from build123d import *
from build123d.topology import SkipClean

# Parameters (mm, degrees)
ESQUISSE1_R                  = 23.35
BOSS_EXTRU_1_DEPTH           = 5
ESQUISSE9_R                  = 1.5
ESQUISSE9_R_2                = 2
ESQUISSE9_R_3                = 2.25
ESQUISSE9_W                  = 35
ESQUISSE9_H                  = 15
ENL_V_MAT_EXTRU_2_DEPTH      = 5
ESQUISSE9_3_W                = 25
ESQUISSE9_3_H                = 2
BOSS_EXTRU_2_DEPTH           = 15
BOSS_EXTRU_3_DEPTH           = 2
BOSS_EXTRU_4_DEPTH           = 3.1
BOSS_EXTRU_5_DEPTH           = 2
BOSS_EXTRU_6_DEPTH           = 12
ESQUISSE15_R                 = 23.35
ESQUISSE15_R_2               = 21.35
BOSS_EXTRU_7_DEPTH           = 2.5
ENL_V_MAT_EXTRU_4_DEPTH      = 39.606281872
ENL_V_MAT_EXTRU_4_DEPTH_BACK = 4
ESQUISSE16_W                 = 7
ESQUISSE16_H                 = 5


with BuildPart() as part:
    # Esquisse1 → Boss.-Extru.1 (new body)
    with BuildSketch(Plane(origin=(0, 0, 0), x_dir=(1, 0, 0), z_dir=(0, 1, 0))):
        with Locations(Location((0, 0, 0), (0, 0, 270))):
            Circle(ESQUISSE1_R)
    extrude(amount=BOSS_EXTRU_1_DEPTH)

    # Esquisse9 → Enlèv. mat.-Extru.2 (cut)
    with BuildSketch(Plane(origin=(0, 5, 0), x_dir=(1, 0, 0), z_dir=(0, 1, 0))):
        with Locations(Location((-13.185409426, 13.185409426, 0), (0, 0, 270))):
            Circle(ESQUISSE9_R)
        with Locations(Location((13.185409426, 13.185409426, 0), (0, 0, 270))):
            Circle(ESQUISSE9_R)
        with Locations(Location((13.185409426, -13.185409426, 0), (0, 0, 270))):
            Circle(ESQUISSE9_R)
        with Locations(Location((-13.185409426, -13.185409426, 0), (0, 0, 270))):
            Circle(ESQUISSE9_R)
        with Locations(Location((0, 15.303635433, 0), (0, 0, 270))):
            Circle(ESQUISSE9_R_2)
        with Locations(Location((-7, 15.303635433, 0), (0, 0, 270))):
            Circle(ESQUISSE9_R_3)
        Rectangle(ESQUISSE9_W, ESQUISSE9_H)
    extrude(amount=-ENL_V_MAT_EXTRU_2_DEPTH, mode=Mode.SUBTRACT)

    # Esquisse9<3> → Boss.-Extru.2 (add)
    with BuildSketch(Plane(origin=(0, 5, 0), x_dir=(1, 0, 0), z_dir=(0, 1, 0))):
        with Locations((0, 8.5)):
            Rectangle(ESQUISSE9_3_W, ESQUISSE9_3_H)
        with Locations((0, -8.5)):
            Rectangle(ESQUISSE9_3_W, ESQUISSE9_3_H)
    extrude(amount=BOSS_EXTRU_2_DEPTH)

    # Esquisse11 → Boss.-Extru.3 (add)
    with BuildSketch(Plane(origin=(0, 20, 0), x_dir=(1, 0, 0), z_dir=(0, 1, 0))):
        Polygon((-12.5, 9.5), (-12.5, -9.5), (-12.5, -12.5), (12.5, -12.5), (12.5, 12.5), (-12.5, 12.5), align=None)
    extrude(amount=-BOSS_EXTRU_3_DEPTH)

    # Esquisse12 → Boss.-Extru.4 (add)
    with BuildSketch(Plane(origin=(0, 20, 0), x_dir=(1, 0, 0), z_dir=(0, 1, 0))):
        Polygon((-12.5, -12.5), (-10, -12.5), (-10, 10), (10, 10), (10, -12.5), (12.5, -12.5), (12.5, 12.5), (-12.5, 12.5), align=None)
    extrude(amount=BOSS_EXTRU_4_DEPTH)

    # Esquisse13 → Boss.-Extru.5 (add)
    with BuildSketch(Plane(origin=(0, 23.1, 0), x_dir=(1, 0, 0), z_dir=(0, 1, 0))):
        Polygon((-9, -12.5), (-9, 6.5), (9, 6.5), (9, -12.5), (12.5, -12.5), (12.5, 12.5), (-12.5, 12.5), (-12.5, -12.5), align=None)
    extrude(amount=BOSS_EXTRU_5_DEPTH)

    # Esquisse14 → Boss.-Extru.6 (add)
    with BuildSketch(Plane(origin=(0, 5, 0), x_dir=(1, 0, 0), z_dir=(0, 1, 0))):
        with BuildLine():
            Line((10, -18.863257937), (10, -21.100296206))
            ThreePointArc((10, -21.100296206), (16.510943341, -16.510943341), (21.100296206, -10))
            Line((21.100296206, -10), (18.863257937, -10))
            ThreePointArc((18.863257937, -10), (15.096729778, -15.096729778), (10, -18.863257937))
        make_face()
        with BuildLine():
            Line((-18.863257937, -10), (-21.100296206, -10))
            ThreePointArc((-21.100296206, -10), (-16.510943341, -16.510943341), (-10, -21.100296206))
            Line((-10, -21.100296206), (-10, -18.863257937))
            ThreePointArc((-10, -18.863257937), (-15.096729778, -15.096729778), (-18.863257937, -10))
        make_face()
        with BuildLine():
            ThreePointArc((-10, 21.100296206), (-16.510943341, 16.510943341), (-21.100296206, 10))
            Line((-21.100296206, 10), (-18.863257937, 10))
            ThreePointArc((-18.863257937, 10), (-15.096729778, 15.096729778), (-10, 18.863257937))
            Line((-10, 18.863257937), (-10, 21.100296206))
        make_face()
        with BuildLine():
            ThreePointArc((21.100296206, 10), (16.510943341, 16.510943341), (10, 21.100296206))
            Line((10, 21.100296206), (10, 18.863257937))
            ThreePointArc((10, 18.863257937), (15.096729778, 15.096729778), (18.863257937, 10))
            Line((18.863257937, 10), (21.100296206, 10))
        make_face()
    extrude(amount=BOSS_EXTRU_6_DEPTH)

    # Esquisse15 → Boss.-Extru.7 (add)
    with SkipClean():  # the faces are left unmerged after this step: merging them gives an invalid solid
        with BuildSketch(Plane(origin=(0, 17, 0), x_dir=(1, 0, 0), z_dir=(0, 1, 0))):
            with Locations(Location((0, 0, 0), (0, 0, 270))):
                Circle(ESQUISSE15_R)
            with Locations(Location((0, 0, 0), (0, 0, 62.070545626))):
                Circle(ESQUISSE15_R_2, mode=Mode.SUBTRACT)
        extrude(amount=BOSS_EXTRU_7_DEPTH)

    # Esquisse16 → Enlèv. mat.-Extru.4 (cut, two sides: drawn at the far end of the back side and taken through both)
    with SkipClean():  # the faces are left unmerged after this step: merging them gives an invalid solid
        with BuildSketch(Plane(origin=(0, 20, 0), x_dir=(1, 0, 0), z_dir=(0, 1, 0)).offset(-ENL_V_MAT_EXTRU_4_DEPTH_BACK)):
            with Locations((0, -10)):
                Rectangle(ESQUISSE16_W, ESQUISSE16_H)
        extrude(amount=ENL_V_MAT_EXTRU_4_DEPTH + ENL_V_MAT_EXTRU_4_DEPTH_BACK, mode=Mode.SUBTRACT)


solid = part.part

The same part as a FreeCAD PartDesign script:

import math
import FreeCAD as App
import Part
import Sketcher
from FreeCAD import Vector


def add_polygon(sketch, points):
    """Adds a closed chain of lines whose ends are joined by coincident constraints."""
    first, n = sketch.GeometryCount, len(points)
    for a, b in zip(points, points[1:] + points[:1]):
        sketch.addGeometry(Part.LineSegment(App.Vector(*a, 0), App.Vector(*b, 0)), False)
    for i in range(n):
        sketch.addConstraint(Sketcher.Constraint("Coincident", first + i, 2, first + (i + 1) % n, 1))

doc = App.newDocument("Part")
body = doc.addObject("PartDesign::Body", "Body")

sketch1 = body.newObject("Sketcher::SketchObject", "Sketch")
sketch1.AttachmentSupport = (doc.getObject("XZ_Plane"), [""])
sketch1.MapMode = "FlatFace"
sketch1.addGeometry(Part.Circle(Vector(0, 0, 0), Vector(0, 0, 1), 23.35), False)
sketch1.addConstraint(Sketcher.Constraint("Coincident", 0, 3, -1, 1))
sketch1.addConstraint(Sketcher.Constraint("Diameter", 0, 46.7))
pad1 = body.newObject("PartDesign::Pad", "Pad")
pad1.Profile = sketch1
pad1.Length = 5
pad1.Reversed = True

sketch2 = body.newObject("Sketcher::SketchObject", "Sketch001")
sketch2.AttachmentSupport = (doc.getObject("XZ_Plane"), [""])
sketch2.MapMode = "FlatFace"
sketch2.AttachmentOffset = App.Placement(Vector(0, 0, -5), App.Rotation())
sketch2.addGeometry(Part.Circle(Vector(-13.185409, -13.185409, 0), Vector(0, 0, 1), 1.5), False)
sketch2.addGeometry(Part.Circle(Vector(13.185409, -13.185409, 0), Vector(0, 0, 1), 1.5), False)
sketch2.addGeometry(Part.Circle(Vector(13.185409, 13.185409, 0), Vector(0, 0, 1), 1.5), False)
sketch2.addGeometry(Part.Circle(Vector(-13.185409, 13.185409, 0), Vector(0, 0, 1), 1.5), False)
sketch2.addGeometry(Part.Circle(Vector(0, -15.303635, 0), Vector(0, 0, 1), 2), False)
sketch2.addGeometry(Part.Circle(Vector(-7, -15.303635, 0), Vector(0, 0, 1), 2.25), False)
add_polygon(sketch2, [(-17.5, -7.5), (-17.5, 7.5), (17.5, 7.5), (17.5, -7.5)])
sketch2.addConstraint(Sketcher.Constraint("Vertical", 6))
sketch2.addConstraint(Sketcher.Constraint("Horizontal", 7))
sketch2.addConstraint(Sketcher.Constraint("Vertical", 8))
sketch2.addConstraint(Sketcher.Constraint("Horizontal", 9))
sketch2.addConstraint(Sketcher.Constraint("Equal", 0, 1))
sketch2.addConstraint(Sketcher.Constraint("Equal", 1, 2))
sketch2.addConstraint(Sketcher.Constraint("Equal", 2, 3))
sketch2.addConstraint(Sketcher.Constraint("Symmetric", 0, 3, 2, 3, -1, 1))
sketch2.addConstraint(Sketcher.Constraint("Symmetric", 1, 3, 3, 3, -1, 1))
sketch2.addConstraint(Sketcher.Constraint("Symmetric", 6, 2, 8, 2, -1, 1))
sketch2.addConstraint(Sketcher.Constraint("Symmetric", 0, 3, 1, 3, -2))
sketch2.addConstraint(Sketcher.Constraint("PointOnObject", 4, 3, -2))
sketch2.addConstraint(Sketcher.Constraint("Horizontal", 4, 3, 5, 3))
sketch2.addConstraint(Sketcher.Constraint("Diameter", 0, 3.0))
sketch2.addConstraint(Sketcher.Constraint("Diameter", 4, 4.0))
sketch2.addConstraint(Sketcher.Constraint("Diameter", 5, 4.5))
sketch2.addConstraint(Sketcher.Constraint("DistanceX", 7, 1, 7, 2, 35.0))
sketch2.addConstraint(Sketcher.Constraint("DistanceY", 6, 1, 6, 2, 15.0))
sketch2.addConstraint(Sketcher.Constraint("DistanceX", 5, 3, -1, 1, 7.0))
sketch2.addConstraint(Sketcher.Constraint("DistanceX", 0, 3, -1, 1, 13.185409))
sketch2.addConstraint(Sketcher.Constraint("DistanceY", 0, 3, -1, 1, 13.185409))
sketch2.addConstraint(Sketcher.Constraint("DistanceY", 4, 3, -1, 1, 15.303635))
pocket1 = body.newObject("PartDesign::Pocket", "Pocket")
pocket1.Profile = sketch2
pocket1.Length = 5
pocket1.Reversed = True

sketch3 = body.newObject("Sketcher::SketchObject", "Sketch002")
sketch3.AttachmentSupport = (doc.getObject("XZ_Plane"), [""])
sketch3.MapMode = "FlatFace"
sketch3.AttachmentOffset = App.Placement(Vector(0, 0, -5), App.Rotation())
add_polygon(sketch3, [(-12.5, -9.5), (-12.5, -7.5), (12.5, -7.5), (12.5, -9.5)])
add_polygon(sketch3, [(-12.5, 7.5), (-12.5, 9.5), (12.5, 9.5), (12.5, 7.5)])
sketch3.addConstraint(Sketcher.Constraint("Vertical", 0))
sketch3.addConstraint(Sketcher.Constraint("Horizontal", 1))
sketch3.addConstraint(Sketcher.Constraint("Vertical", 2))
sketch3.addConstraint(Sketcher.Constraint("Horizontal", 3))
sketch3.addConstraint(Sketcher.Constraint("Vertical", 4))
sketch3.addConstraint(Sketcher.Constraint("Horizontal", 5))
sketch3.addConstraint(Sketcher.Constraint("Vertical", 6))
sketch3.addConstraint(Sketcher.Constraint("Horizontal", 7))
sketch3.addConstraint(Sketcher.Constraint("Symmetric", 2, 2, 4, 2, -1, 1))
sketch3.addConstraint(Sketcher.Constraint("Symmetric", 0, 2, 6, 2, -1, 1))
sketch3.addConstraint(Sketcher.Constraint("Vertical", 3, 2, 4, 2))
sketch3.addConstraint(Sketcher.Constraint("DistanceX", 1, 1, 1, 2, 25.0))
sketch3.addConstraint(Sketcher.Constraint("DistanceY", 0, 1, 0, 2, 2.0))
sketch3.addConstraint(Sketcher.Constraint("DistanceY", 0, 2, 4, 2, 17.0))
pad2 = body.newObject("PartDesign::Pad", "Pad001")
pad2.Profile = sketch3
pad2.Length = 15
pad2.Reversed = True

sketch4 = body.newObject("Sketcher::SketchObject", "Sketch003")
sketch4.AttachmentSupport = (doc.getObject("XZ_Plane"), [""])
sketch4.MapMode = "FlatFace"
sketch4.AttachmentOffset = App.Placement(Vector(0, 0, -20), App.Rotation())
add_polygon(sketch4, [(-12.5, 12.5), (12.5, 12.5), (12.5, -12.5), (-12.5, -12.5)])
sketch4.addConstraint(Sketcher.Constraint("Horizontal", 0))
sketch4.addConstraint(Sketcher.Constraint("Vertical", 1))
sketch4.addConstraint(Sketcher.Constraint("Horizontal", 2))
sketch4.addConstraint(Sketcher.Constraint("Vertical", 3))
sketch4.addConstraint(Sketcher.Constraint("Symmetric", 0, 2, 2, 2, -1, 1))
sketch4.addConstraint(Sketcher.Constraint("Equal", 2, 1))
sketch4.addConstraint(Sketcher.Constraint("DistanceX", 0, 1, 0, 2, 25.0))
pad3 = body.newObject("PartDesign::Pad", "Pad002")
pad3.Profile = sketch4
pad3.Length = 2

sketch5 = body.newObject("Sketcher::SketchObject", "Sketch004")
sketch5.AttachmentSupport = (doc.getObject("XZ_Plane"), [""])
sketch5.MapMode = "FlatFace"
sketch5.AttachmentOffset = App.Placement(Vector(0, 0, -20), App.Rotation())
add_polygon(sketch5, [(-12.5, 12.5), (-10, 12.5), (-10, -10), (10, -10), (10, 12.5), (12.5, 12.5), (12.5, -12.5), (-12.5, -12.5)])
sketch5.addConstraint(Sketcher.Constraint("Horizontal", 0))
sketch5.addConstraint(Sketcher.Constraint("Vertical", 1))
sketch5.addConstraint(Sketcher.Constraint("Horizontal", 2))
sketch5.addConstraint(Sketcher.Constraint("Vertical", 3))
sketch5.addConstraint(Sketcher.Constraint("Horizontal", 4))
sketch5.addConstraint(Sketcher.Constraint("Vertical", 5))
sketch5.addConstraint(Sketcher.Constraint("Horizontal", 6))
sketch5.addConstraint(Sketcher.Constraint("Vertical", 7))
sketch5.addConstraint(Sketcher.Constraint("Symmetric", 4, 2, 6, 2, -1, 1))
sketch5.addConstraint(Sketcher.Constraint("Symmetric", 0, 2, 3, 2, -2))
sketch5.addConstraint(Sketcher.Constraint("Equal", 6, 5))
sketch5.addConstraint(Sketcher.Constraint("DistanceX", 2, 1, 2, 2, 20.0))
sketch5.addConstraint(Sketcher.Constraint("DistanceX", 6, 2, 6, 1, 25.0))
sketch5.addConstraint(Sketcher.Constraint("DistanceY", 1, 2, 1, 1, 22.5))
pad4 = body.newObject("PartDesign::Pad", "Pad003")
pad4.Profile = sketch5
pad4.Length = 3.1
pad4.Reversed = True

sketch6 = body.newObject("Sketcher::SketchObject", "Sketch005")
sketch6.AttachmentSupport = (doc.getObject("XZ_Plane"), [""])
sketch6.MapMode = "FlatFace"
sketch6.AttachmentOffset = App.Placement(Vector(0, 0, -23.1), App.Rotation())
add_polygon(sketch6, [(-9, 12.5), (-9, -6.5), (9, -6.5), (9, 12.5), (12.5, 12.5), (12.5, -12.5), (-12.5, -12.5), (-12.5, 12.5)])
sketch6.addConstraint(Sketcher.Constraint("Vertical", 0))
sketch6.addConstraint(Sketcher.Constraint("Horizontal", 1))
sketch6.addConstraint(Sketcher.Constraint("Vertical", 2))
sketch6.addConstraint(Sketcher.Constraint("Horizontal", 3))
sketch6.addConstraint(Sketcher.Constraint("Vertical", 4))
sketch6.addConstraint(Sketcher.Constraint("Horizontal", 5))
sketch6.addConstraint(Sketcher.Constraint("Vertical", 6))
sketch6.addConstraint(Sketcher.Constraint("Horizontal", 7))
sketch6.addConstraint(Sketcher.Constraint("Symmetric", 3, 2, 5, 2, -1, 1))
sketch6.addConstraint(Sketcher.Constraint("Symmetric", 2, 2, 7, 2, -2))
sketch6.addConstraint(Sketcher.Constraint("Equal", 5, 4))
sketch6.addConstraint(Sketcher.Constraint("DistanceX", 1, 1, 1, 2, 18.0))
sketch6.addConstraint(Sketcher.Constraint("DistanceX", 5, 2, 5, 1, 25.0))
sketch6.addConstraint(Sketcher.Constraint("DistanceY", 0, 2, 0, 1, 19.0))
pad5 = body.newObject("PartDesign::Pad", "Pad004")
pad5.Profile = sketch6
pad5.Length = 2
pad5.Reversed = True

sketch7 = body.newObject("Sketcher::SketchObject", "Sketch006")
sketch7.AttachmentSupport = (doc.getObject("XZ_Plane"), [""])
sketch7.MapMode = "FlatFace"
sketch7.AttachmentOffset = App.Placement(Vector(0, 0, -5), App.Rotation())
sketch7.addGeometry(Part.LineSegment(Vector(10, 18.863258, 0), Vector(10, 21.100296, 0)), False)
sketch7.addGeometry(Part.ArcOfCircle(Part.Circle(Vector(0, 0, 0), Vector(0, 0, 1), 23.35), math.radians(25.357536), math.radians(64.642464)), False)
sketch7.addGeometry(Part.LineSegment(Vector(21.100296, 10, 0), Vector(18.863258, 10, 0)), False)
sketch7.addGeometry(Part.ArcOfCircle(Part.Circle(Vector(0, 0, 0), Vector(0, 0, 1), 21.35), math.radians(27.929454), math.radians(62.070546)), False)
sketch7.addGeometry(Part.LineSegment(Vector(-18.863258, 10, 0), Vector(-21.100296, 10, 0)), False)
sketch7.addGeometry(Part.ArcOfCircle(Part.Circle(Vector(0, 0, 0), Vector(0, 0, 1), 23.35), math.radians(115.357536), math.radians(154.642464)), False)
sketch7.addGeometry(Part.LineSegment(Vector(-10, 21.100296, 0), Vector(-10, 18.863258, 0)), False)
sketch7.addGeometry(Part.ArcOfCircle(Part.Circle(Vector(0, 0, 0), Vector(0, 0, 1), 21.35), math.radians(117.929454), math.radians(152.070546)), False)
sketch7.addGeometry(Part.ArcOfCircle(Part.Circle(Vector(0, 0, 0), Vector(0, 0, 1), 23.35), math.radians(-154.642464), math.radians(-115.357536)), False)
sketch7.addGeometry(Part.LineSegment(Vector(-21.100296, -10, 0), Vector(-18.863258, -10, 0)), False)
sketch7.addGeometry(Part.ArcOfCircle(Part.Circle(Vector(0, 0, 0), Vector(0, 0, 1), 21.35), math.radians(-152.070546), math.radians(-117.929454)), False)
sketch7.addGeometry(Part.LineSegment(Vector(-10, -18.863258, 0), Vector(-10, -21.100296, 0)), False)
sketch7.addGeometry(Part.ArcOfCircle(Part.Circle(Vector(0, 0, 0), Vector(0, 0, 1), 23.35), math.radians(-64.642464), math.radians(-25.357536)), False)
sketch7.addGeometry(Part.LineSegment(Vector(10, -21.100296, 0), Vector(10, -18.863258, 0)), False)
sketch7.addGeometry(Part.ArcOfCircle(Part.Circle(Vector(0, 0, 0), Vector(0, 0, 1), 21.35), math.radians(-62.070546), math.radians(-27.929454)), False)
sketch7.addGeometry(Part.LineSegment(Vector(18.863258, -10, 0), Vector(21.100296, -10, 0)), False)
sketch7.addConstraint(Sketcher.Constraint("Coincident", 0, 2, 1, 2))
sketch7.addConstraint(Sketcher.Constraint("Coincident", 1, 1, 2, 1))
sketch7.addConstraint(Sketcher.Constraint("Coincident", 2, 2, 3, 1))
sketch7.addConstraint(Sketcher.Constraint("Coincident", 3, 2, 0, 1))
sketch7.addConstraint(Sketcher.Constraint("Coincident", 4, 2, 5, 2))
sketch7.addConstraint(Sketcher.Constraint("Coincident", 5, 1, 6, 1))
sketch7.addConstraint(Sketcher.Constraint("Coincident", 6, 2, 7, 1))
sketch7.addConstraint(Sketcher.Constraint("Coincident", 7, 2, 4, 1))
sketch7.addConstraint(Sketcher.Constraint("Coincident", 8, 1, 9, 1))
sketch7.addConstraint(Sketcher.Constraint("Coincident", 9, 2, 10, 1))
sketch7.addConstraint(Sketcher.Constraint("Coincident", 10, 2, 11, 1))
sketch7.addConstraint(Sketcher.Constraint("Coincident", 11, 2, 8, 2))
sketch7.addConstraint(Sketcher.Constraint("Coincident", 12, 1, 13, 1))
sketch7.addConstraint(Sketcher.Constraint("Coincident", 13, 2, 14, 1))
sketch7.addConstraint(Sketcher.Constraint("Coincident", 14, 2, 15, 1))
sketch7.addConstraint(Sketcher.Constraint("Coincident", 15, 2, 12, 2))
sketch7.addConstraint(Sketcher.Constraint("Vertical", 0))
sketch7.addConstraint(Sketcher.Constraint("Horizontal", 2))
sketch7.addConstraint(Sketcher.Constraint("Horizontal", 4))
sketch7.addConstraint(Sketcher.Constraint("Vertical", 6))
sketch7.addConstraint(Sketcher.Constraint("Horizontal", 9))
sketch7.addConstraint(Sketcher.Constraint("Vertical", 11))
sketch7.addConstraint(Sketcher.Constraint("Vertical", 13))
sketch7.addConstraint(Sketcher.Constraint("Horizontal", 15))
sketch7.addConstraint(Sketcher.Constraint("Coincident", 1, 3, -1, 1))
sketch7.addConstraint(Sketcher.Constraint("Coincident", 3, 3, -1, 1))
sketch7.addConstraint(Sketcher.Constraint("Coincident", 5, 3, -1, 1))
sketch7.addConstraint(Sketcher.Constraint("Coincident", 7, 3, -1, 1))
sketch7.addConstraint(Sketcher.Constraint("Coincident", 8, 3, -1, 1))
sketch7.addConstraint(Sketcher.Constraint("Coincident", 10, 3, -1, 1))
sketch7.addConstraint(Sketcher.Constraint("Coincident", 12, 3, -1, 1))
sketch7.addConstraint(Sketcher.Constraint("Coincident", 14, 3, -1, 1))
sketch7.addConstraint(Sketcher.Constraint("Equal", 1, 5))
sketch7.addConstraint(Sketcher.Constraint("Equal", 3, 7))
sketch7.addConstraint(Sketcher.Constraint("Equal", 5, 8))
sketch7.addConstraint(Sketcher.Constraint("Equal", 7, 10))
sketch7.addConstraint(Sketcher.Constraint("Equal", 8, 12))
sketch7.addConstraint(Sketcher.Constraint("Equal", 10, 14))
sketch7.addConstraint(Sketcher.Constraint("Horizontal", 2, 2, 4, 2))
sketch7.addConstraint(Sketcher.Constraint("Horizontal", 0, 2, 5, 1))
sketch7.addConstraint(Sketcher.Constraint("Horizontal", 11, 2, 12, 1))
sketch7.addConstraint(Sketcher.Constraint("Horizontal", 9, 2, 14, 2))
sketch7.addConstraint(Sketcher.Constraint("Vertical", 4, 2, 8, 1))
sketch7.addConstraint(Sketcher.Constraint("Vertical", 6, 2, 10, 2))
sketch7.addConstraint(Sketcher.Constraint("Equal", 15, 0))
sketch7.addConstraint(Sketcher.Constraint("Radius", 1, 23.35))
sketch7.addConstraint(Sketcher.Constraint("Radius", 3, 21.35))
sketch7.addConstraint(Sketcher.Constraint("DistanceX", -1, 1, 0, 2, 10.0))
pad6 = body.newObject("PartDesign::Pad", "Pad005")
pad6.Profile = sketch7
pad6.Length = 12
pad6.Reversed = True

sketch8 = body.newObject("Sketcher::SketchObject", "Sketch007")
sketch8.AttachmentSupport = (doc.getObject("XZ_Plane"), [""])
sketch8.MapMode = "FlatFace"
sketch8.AttachmentOffset = App.Placement(Vector(0, 0, -17), App.Rotation())
sketch8.addGeometry(Part.Circle(Vector(0, 0, 0), Vector(0, 0, 1), 23.35), False)
sketch8.addGeometry(Part.Circle(Vector(0, 0, 0), Vector(0, 0, 1), 21.35), False)
sketch8.addConstraint(Sketcher.Constraint("Coincident", 0, 3, -1, 1))
sketch8.addConstraint(Sketcher.Constraint("Coincident", 1, 3, -1, 1))
sketch8.addConstraint(Sketcher.Constraint("Diameter", 0, 46.7))
sketch8.addConstraint(Sketcher.Constraint("Diameter", 1, 42.7))
pad7 = body.newObject("PartDesign::Pad", "Pad006")
pad7.Profile = sketch8
pad7.Length = 2.5
pad7.Reversed = True

sketch9 = body.newObject("Sketcher::SketchObject", "Sketch008")
sketch9.AttachmentSupport = (doc.getObject("XZ_Plane"), [""])
sketch9.MapMode = "FlatFace"
sketch9.AttachmentOffset = App.Placement(Vector(0, 0, -20), App.Rotation())
add_polygon(sketch9, [(-3.5, 7.5), (-3.5, 12.5), (3.5, 12.5), (3.5, 7.5)])
sketch9.addConstraint(Sketcher.Constraint("Vertical", 0))
sketch9.addConstraint(Sketcher.Constraint("Horizontal", 1))
sketch9.addConstraint(Sketcher.Constraint("Vertical", 2))
sketch9.addConstraint(Sketcher.Constraint("Horizontal", 3))
sketch9.addConstraint(Sketcher.Constraint("DistanceX", 1, 1, 1, 2, 7.0))
sketch9.addConstraint(Sketcher.Constraint("DistanceY", 0, 1, 0, 2, 5.0))
sketch9.addConstraint(Sketcher.Constraint("DistanceX", 0, 2, -1, 1, 3.5))
sketch9.addConstraint(Sketcher.Constraint("DistanceY", -1, 1, 0, 2, 12.5))
pocket2 = body.newObject("PartDesign::Pocket", "Pocket001")
pocket2.Profile = sketch9
pocket2.Type = "TwoLengths"
pocket2.Length = 39.606282
pocket2.Length2 = 4

doc.recompute()
